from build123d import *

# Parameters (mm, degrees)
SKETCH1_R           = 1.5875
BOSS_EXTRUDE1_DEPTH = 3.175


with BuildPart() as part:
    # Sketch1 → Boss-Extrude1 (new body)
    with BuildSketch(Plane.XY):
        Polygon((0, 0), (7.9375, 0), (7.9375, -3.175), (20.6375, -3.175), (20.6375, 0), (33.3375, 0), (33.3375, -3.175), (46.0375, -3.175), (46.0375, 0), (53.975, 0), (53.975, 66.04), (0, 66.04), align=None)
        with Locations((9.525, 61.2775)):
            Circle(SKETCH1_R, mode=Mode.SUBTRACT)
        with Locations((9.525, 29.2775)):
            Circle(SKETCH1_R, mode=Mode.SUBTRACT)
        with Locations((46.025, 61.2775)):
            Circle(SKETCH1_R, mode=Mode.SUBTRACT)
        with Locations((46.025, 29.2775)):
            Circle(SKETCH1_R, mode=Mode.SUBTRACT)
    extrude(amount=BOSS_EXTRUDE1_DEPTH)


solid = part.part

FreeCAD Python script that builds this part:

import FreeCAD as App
import Part
import Sketcher

V = App.Vector
Q = App.Units.Quantity


def add_polygon(sketch, points):
    """Adds a closed chain of lines whose ends are joined by coincident constraints."""
    first, n = sketch.GeometryCount, len(points)
    for a, b in zip(points, points[1:] + points[:1]):
        sketch.addGeometry(Part.LineSegment(App.Vector(*a, 0), App.Vector(*b, 0)), False)
    for i in range(n):
        sketch.addConstraint(Sketcher.Constraint("Coincident", first + i, 2, first + (i + 1) % n, 1))

doc = App.newDocument("Part")
body = doc.addObject("PartDesign::Body", "Body")

# Sketch on XY plane
sketch1 = doc.addObject("Sketcher::SketchObject", "Sketch")
body.addObject(sketch1)
sketch1.AttachmentSupport = (doc.XY_Plane, [""])
sketch1.MapMode = "FlatFace"
add_polygon(sketch1, [(0, 0), (7.9375, 0), (7.9375, -3.175), (20.6375, -3.175), (20.6375, 0), (33.3375, 0), (33.3375, -3.175), (46.0375, -3.175), (46.0375, 0), (53.975, 0), (53.975, 66.04), (0, 66.04)])  # lines 0-11
sketch1.addGeometry(Part.Circle(V(9.525, 29.2775, 0), V(0, 0, 1), 1.5875), False)  # 12
sketch1.addGeometry(Part.Circle(V(46.025, 29.2775, 0), V(0, 0, 1), 1.5875), False)  # 13
sketch1.addGeometry(Part.Circle(V(9.525, 61.2775, 0), V(0, 0, 1), 1.5875), False)  # 14
sketch1.addGeometry(Part.Circle(V(46.025, 61.2775, 0), V(0, 0, 1), 1.5875), False)  # 15
sketch1.addConstraint([
    Sketcher.Constraint("Horizontal", 0),
    Sketcher.Constraint("Vertical", 1),
    Sketcher.Constraint("Horizontal", 2),
    Sketcher.Constraint("Vertical", 3),
    Sketcher.Constraint("Horizontal", 4),
    Sketcher.Constraint("Vertical", 5),
    Sketcher.Constraint("Horizontal", 6),
    Sketcher.Constraint("Vertical", 7),
    Sketcher.Constraint("Horizontal", 8),
    Sketcher.Constraint("Vertical", 9),
    Sketcher.Constraint("Horizontal", 10),
    Sketcher.Constraint("Vertical", 11),
    Sketcher.Constraint("Coincident", 11, 2, -1, 1),
    Sketcher.Constraint("Equal", 12, 13),
    Sketcher.Constraint("Equal", 13, 14),
    Sketcher.Constraint("Equal", 14, 15),
    Sketcher.Constraint("PointOnObject", 3, 2, -1),
    Sketcher.Constraint("PointOnObject", 7, 2, -1),
    Sketcher.Constraint("Horizontal", 12, 3, 13, 3),
    Sketcher.Constraint("Horizontal", 14, 3, 15, 3),
    Sketcher.Constraint("Horizontal", 2, 2, 5, 2),
    Sketcher.Constraint("Vertical", 12, 3, 14, 3),
    Sketcher.Constraint("Vertical", 13, 3, 15, 3),
    Sketcher.Constraint("Equal", 2, 4),
    Sketcher.Constraint("Equal", 4, 6),
    Sketcher.Constraint("Equal", 0, 8),
    Sketcher.Constraint("Diameter", 12, Q("0.125 in")),
    Sketcher.Constraint("DistanceX", 2, 1, 2, 2, Q("0.5 in")),
    Sketcher.Constraint("DistanceY", 9, 1, 9, 2, Q("2.6 in")),
    Sketcher.Constraint("DistanceX", 0, 1, 0, 2, Q("0.3125 in")),
    Sketcher.Constraint("DistanceY", 1, 2, 1, 1, Q("0.125 in")),
    Sketcher.Constraint("DistanceX", 14, 3, 9, 2, Q("1.75 in")),
    Sketcher.Constraint("DistanceY", 15, 3, 9, 2, Q("0.1875 in")),
    Sketcher.Constraint("DistanceY", -1, 1, 12, 3, Q("29.2775 mm")),
    Sketcher.Constraint("DistanceX", -1, 1, 13, 3, Q("46.025 mm")),
])
pad1 = doc.addObject("PartDesign::Pad", "Pad")
body.addObject(pad1)
pad1.Profile = sketch1
pad1.Length = Q("0.125 in")

doc.recompute()
